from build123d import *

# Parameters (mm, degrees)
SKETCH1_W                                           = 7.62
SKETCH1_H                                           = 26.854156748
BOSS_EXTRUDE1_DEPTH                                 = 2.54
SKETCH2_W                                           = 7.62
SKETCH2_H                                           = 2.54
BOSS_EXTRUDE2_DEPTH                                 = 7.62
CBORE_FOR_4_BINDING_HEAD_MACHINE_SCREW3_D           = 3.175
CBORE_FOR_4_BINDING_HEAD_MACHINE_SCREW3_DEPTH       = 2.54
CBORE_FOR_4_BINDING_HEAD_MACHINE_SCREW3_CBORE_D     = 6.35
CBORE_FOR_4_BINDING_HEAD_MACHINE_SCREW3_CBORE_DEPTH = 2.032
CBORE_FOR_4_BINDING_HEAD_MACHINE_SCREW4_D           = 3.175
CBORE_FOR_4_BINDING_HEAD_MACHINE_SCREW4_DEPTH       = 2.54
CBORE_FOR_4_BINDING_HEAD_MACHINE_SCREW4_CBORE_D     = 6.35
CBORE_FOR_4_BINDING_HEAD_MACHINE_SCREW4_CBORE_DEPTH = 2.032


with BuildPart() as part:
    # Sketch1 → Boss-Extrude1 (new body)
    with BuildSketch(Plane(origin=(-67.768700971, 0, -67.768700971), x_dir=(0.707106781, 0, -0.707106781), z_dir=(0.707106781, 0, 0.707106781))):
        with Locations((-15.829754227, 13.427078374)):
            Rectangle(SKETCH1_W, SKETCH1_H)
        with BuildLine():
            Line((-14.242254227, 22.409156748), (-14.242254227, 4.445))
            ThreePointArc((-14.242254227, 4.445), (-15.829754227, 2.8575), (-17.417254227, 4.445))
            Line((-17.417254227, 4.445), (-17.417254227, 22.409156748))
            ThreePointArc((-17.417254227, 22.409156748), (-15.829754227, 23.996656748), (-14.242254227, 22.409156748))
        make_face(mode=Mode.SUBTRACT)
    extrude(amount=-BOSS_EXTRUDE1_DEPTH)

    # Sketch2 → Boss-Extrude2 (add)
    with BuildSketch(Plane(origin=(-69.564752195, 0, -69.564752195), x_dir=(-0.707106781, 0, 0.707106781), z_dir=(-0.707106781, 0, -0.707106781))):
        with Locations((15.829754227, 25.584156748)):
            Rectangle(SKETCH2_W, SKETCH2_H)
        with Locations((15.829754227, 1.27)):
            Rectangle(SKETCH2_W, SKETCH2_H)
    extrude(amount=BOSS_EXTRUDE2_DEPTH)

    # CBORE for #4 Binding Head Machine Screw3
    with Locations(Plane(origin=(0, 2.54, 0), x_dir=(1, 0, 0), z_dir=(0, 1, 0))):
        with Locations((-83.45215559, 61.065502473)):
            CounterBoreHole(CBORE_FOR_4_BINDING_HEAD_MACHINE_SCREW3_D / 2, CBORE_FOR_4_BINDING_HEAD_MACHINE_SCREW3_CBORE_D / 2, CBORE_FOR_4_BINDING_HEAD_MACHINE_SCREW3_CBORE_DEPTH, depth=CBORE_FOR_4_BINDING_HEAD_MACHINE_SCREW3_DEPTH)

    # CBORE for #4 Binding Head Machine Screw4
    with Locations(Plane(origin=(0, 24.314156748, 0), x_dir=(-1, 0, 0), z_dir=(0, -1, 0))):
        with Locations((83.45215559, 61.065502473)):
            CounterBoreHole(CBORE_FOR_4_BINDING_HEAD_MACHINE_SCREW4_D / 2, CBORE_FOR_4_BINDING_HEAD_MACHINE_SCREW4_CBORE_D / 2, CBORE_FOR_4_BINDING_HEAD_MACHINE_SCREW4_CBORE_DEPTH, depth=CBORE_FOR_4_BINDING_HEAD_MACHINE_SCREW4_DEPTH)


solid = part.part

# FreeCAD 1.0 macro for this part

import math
import FreeCAD as App
import Part
import Sketcher
from FreeCAD import Vector
Q = App.Units.Quantity

doc = App.newDocument("Part")
body = doc.addObject("PartDesign::Body", "Body")

# Sketch on an angled plane
sketch1 = doc.addObject("Sketcher::SketchObject", "Sketch")
body.addObject(sketch1)
sketch1.Placement = App.Placement(Vector(-67.768701, 0, -67.768701), App.Rotation(Vector(0.707106781, 0, -0.707106781), Vector(0, 0.999999999, 0), Vector(0.707106781, 0, 0.707106781), "ZXY"))
sketch1.addGeometry([
    Part.LineSegment(Vector(-19.639754, 26.854157, 0), Vector(-19.639754, 0, 0)),  # 0
    Part.LineSegment(Vector(-19.639754, 0, 0), Vector(-12.019754, 0, 0)),  # 1
    Part.LineSegment(Vector(-12.019754, 0, 0), Vector(-12.019754, 26.854157, 0)),  # 2
    Part.LineSegment(Vector(-12.019754, 26.854157, 0), Vector(-19.639754, 26.854157, 0)),  # 3
    Part.ArcOfCircle(Part.Circle(Vector(-15.829754, 22.409157, 0), Vector(0, 0, 1), 1.5875), math.radians(0), math.radians(180)),  # 4
    Part.LineSegment(Vector(-14.242254, 22.409157, 0), Vector(-14.242254, 4.445, 0)),  # 5
    Part.ArcOfCircle(Part.Circle(Vector(-15.829754, 4.445, 0), Vector(0, 0, 1), 1.5875), math.radians(180), math.radians(360)),  # 6
    Part.LineSegment(Vector(-17.417254, 4.445, 0), Vector(-17.417254, 22.409157, 0)),  # 7
], False)
sketch1.addConstraint([
    Sketcher.Constraint("Coincident", 0, 2, 1, 1),
    Sketcher.Constraint("Coincident", 1, 2, 2, 1),
    Sketcher.Constraint("Coincident", 2, 2, 3, 1),
    Sketcher.Constraint("Coincident", 3, 2, 0, 1),
    Sketcher.Constraint("Tangent", 4, 1, 5, 1),
    Sketcher.Constraint("Tangent", 5, 2, 6, 2),
    Sketcher.Constraint("Tangent", 6, 1, 7, 1),
    Sketcher.Constraint("Tangent", 7, 2, 4, 2),
    Sketcher.Constraint("Vertical", 0),
    Sketcher.Constraint("Horizontal", 1),
    Sketcher.Constraint("Vertical", 2),
    Sketcher.Constraint("Horizontal", 3),
    Sketcher.Constraint("Vertical", 5),
    Sketcher.Constraint("Vertical", 7),
    Sketcher.Constraint("PointOnObject", 0, 2, -1),
    Sketcher.Constraint("DistanceX", 1, 1, 1, 2, Q("0.3 in")),
    Sketcher.Constraint("Radius", 4, Q("0.0625 in")),
    Sketcher.Constraint("DistanceX", 0, 2, 6, 3, Q("0.15 in")),
    Sketcher.Constraint("DistanceY", -1, 1, 6, 3, Q("0.175 in")),
    Sketcher.Constraint("DistanceY", 4, 3, 2, 2, Q("0.175 in")),
    Sketcher.Constraint("DistanceY", 0, 2, 0, 1, 26.854157),
    Sketcher.Constraint("DistanceX", 4, 3, -1, 1, 15.829754),
])
pad1 = doc.addObject("PartDesign::Pad", "Pad")
body.addObject(pad1)
pad1.Profile = sketch1
pad1.Length = Q("0.1 in")
pad1.Reversed = True

# Sketch on an angled plane
sketch2 = doc.addObject("Sketcher::SketchObject", "Sketch001")
body.addObject(sketch2)
sketch2.Placement = App.Placement(Vector(-69.564752, 0, -69.564752), App.Rotation(Vector(-0.707106781, 0, 0.707106781), Vector(0, 0.999999999, 0), Vector(-0.707106781, 0, -0.707106781), "ZXY"))
sketch2.addGeometry([
    Part.LineSegment(Vector(12.019754, 26.854157, 0), Vector(12.019754, 24.314157, 0)),  # 0
    Part.LineSegment(Vector(12.019754, 24.314157, 0), Vector(19.639754, 24.314157, 0)),  # 1
    Part.LineSegment(Vector(19.639754, 24.314157, 0), Vector(19.639754, 26.854157, 0)),  # 2
    Part.LineSegment(Vector(19.639754, 26.854157, 0), Vector(12.019754, 26.854157, 0)),  # 3
    Part.LineSegment(Vector(12.019754, 2.54, 0), Vector(12.019754, 0, 0)),  # 4
    Part.LineSegment(Vector(12.019754, 0, 0), Vector(19.639754, 0, 0)),  # 5
    Part.LineSegment(Vector(19.639754, 0, 0), Vector(19.639754, 2.54, 0)),  # 6
    Part.LineSegment(Vector(19.639754, 2.54, 0), Vector(12.019754, 2.54, 0)),  # 7
], False)
sketch2.addConstraint([
    Sketcher.Constraint("Coincident", 0, 2, 1, 1),
    Sketcher.Constraint("Coincident", 1, 2, 2, 1),
    Sketcher.Constraint("Coincident", 2, 2, 3, 1),
    Sketcher.Constraint("Coincident", 3, 2, 0, 1),
    Sketcher.Constraint("Coincident", 4, 2, 5, 1),
    Sketcher.Constraint("Coincident", 5, 2, 6, 1),
    Sketcher.Constraint("Coincident", 6, 2, 7, 1),
    Sketcher.Constraint("Coincident", 7, 2, 4, 1),
    Sketcher.Constraint("Vertical", 0),
    Sketcher.Constraint("Horizontal", 1),
    Sketcher.Constraint("Vertical", 2),
    Sketcher.Constraint("Horizontal", 3),
    Sketcher.Constraint("Vertical", 4),
    Sketcher.Constraint("Horizontal", 5),
    Sketcher.Constraint("Vertical", 6),
    Sketcher.Constraint("Horizontal", 7),
    Sketcher.Constraint("PointOnObject", 4, 2, -1),
    Sketcher.Constraint("Vertical", 3, 2, 4, 2),
    Sketcher.Constraint("Vertical", 2, 2, 5, 2),
    Sketcher.Constraint("Equal", 2, 4),
    Sketcher.Constraint("DistanceX", 1, 1, 1, 2, Q("0.3 in")),
    Sketcher.Constraint("DistanceY", 0, 2, 0, 1, Q("0.1 in")),
    Sketcher.Constraint("DistanceX", -1, 1, 0, 2, 12.019754),
    Sketcher.Constraint("DistanceY", -1, 1, 0, 2, 24.314157),
])
pad2 = doc.addObject("PartDesign::Pad", "Pad001")
body.addObject(pad2)
pad2.Profile = sketch2
pad2.Length = Q("0.3 in")

# Sketch on XZ plane
sketch3 = doc.addObject("Sketcher::SketchObject", "Sketch002")
body.addObject(sketch3)
sketch3.AttachmentSupport = (doc.XZ_Plane, [""])
sketch3.MapMode = "FlatFace"
sketch3.AttachmentOffset = App.Placement(Vector(0, 0, -0.1 * 25.4), App.Rotation())
sketch3.addGeometry(Part.Circle(Vector(-83.452156, -61.065502, 0), Vector(0, 0, 1), 1.5875), False)
sketch3.addConstraint([
    Sketcher.Constraint("Diameter", 0, Q("0.125 in")),
    Sketcher.Constraint("DistanceX", 0, 3, -1, 1, 83.452156),
    Sketcher.Constraint("DistanceY", 0, 3, -1, 1, 61.065502),
])
doc.recompute()
hole = doc.addObject("PartDesign::Hole", "Hole")
body.addObject(hole)
hole.Profile = sketch3
hole.ThreadType = "None"
hole.Diameter = Q("0.125 in")
hole.DepthType = "Dimension"
hole.Depth = Q("0.1 in")
hole.DrillPoint = "Flat"
hole.HoleCutType = "Counterbore"
hole.HoleCutDiameter = Q("0.25 in")
hole.HoleCutDepth = Q("0.08 in")
hole.Reversed = True

# Sketch on XZ plane
sketch4 = doc.addObject("Sketcher::SketchObject", "Sketch003")
body.addObject(sketch4)
sketch4.AttachmentSupport = (doc.XZ_Plane, [""])
sketch4.MapMode = "FlatFace"
sketch4.AttachmentOffset = App.Placement(Vector(0, 0, -24.314157), App.Rotation())
sketch4.addGeometry(Part.Circle(Vector(-83.452156, -61.065502, 0), Vector(0, 0, 1), 1.5875), False)
sketch4.addConstraint([
    Sketcher.Constraint("Diameter", 0, Q("0.125 in")),
    Sketcher.Constraint("DistanceX", 0, 3, -1, 1, 83.452156),
    Sketcher.Constraint("DistanceY", 0, 3, -1, 1, 61.065502),
])
doc.recompute()
hole2 = doc.addObject("PartDesign::Hole", "Hole001")
body.addObject(hole2)
hole2.Profile = sketch4
hole2.ThreadType = "None"
hole2.Diameter = Q("0.125 in")
hole2.DepthType = "Dimension"
hole2.Depth = Q("0.1 in")
hole2.DrillPoint = "Flat"
hole2.HoleCutType = "Counterbore"
hole2.HoleCutDiameter = Q("0.25 in")
hole2.HoleCutDepth = Q("0.08 in")

doc.recompute()
